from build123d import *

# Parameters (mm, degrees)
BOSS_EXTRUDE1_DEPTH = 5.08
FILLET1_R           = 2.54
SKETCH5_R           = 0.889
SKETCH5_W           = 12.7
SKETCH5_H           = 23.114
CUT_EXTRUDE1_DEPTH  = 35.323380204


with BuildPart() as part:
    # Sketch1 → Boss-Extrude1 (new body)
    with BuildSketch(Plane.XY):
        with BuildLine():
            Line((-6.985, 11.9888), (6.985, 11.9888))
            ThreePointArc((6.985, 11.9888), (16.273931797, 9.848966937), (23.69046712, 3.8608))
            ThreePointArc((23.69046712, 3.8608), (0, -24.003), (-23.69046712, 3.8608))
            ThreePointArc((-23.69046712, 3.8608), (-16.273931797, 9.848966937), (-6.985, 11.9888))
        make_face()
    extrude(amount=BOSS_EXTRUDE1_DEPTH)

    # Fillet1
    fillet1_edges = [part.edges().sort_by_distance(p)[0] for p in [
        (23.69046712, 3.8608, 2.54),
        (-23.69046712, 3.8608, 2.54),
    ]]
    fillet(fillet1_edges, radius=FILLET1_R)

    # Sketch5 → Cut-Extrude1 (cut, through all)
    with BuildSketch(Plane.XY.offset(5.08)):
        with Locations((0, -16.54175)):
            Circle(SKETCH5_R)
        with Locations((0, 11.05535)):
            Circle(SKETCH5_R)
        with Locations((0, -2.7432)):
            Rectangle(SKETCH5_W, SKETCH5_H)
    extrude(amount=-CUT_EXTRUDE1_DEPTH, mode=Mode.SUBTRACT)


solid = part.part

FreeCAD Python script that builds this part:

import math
import FreeCAD as App
import Part
import Sketcher
Q = App.Units.Quantity


def edges_at(feature, points):
    """Names of the edges that pass closest to the given points."""
    edges = feature.Shape.Edges
    near = lambda p: min(range(len(edges)), key=lambda i: edges[i].distToShape(Part.Vertex(*p))[0])
    return sorted({f"Edge{near(p) + 1}" for p in points})


def add_polygon(sketch, points):
    """Adds a closed chain of lines whose ends are joined by coincident constraints."""
    first, n = sketch.GeometryCount, len(points)
    for a, b in zip(points, points[1:] + points[:1]):
        sketch.addGeometry(Part.LineSegment(App.Vector(*a, 0), App.Vector(*b, 0)), False)
    for i in range(n):
        sketch.addConstraint(Sketcher.Constraint("Coincident", first + i, 2, first + (i + 1) % n, 1))

doc = App.newDocument("Part")
body = doc.addObject("PartDesign::Body", "Body")

# Sketch on XY plane
sketch1 = body.newObject("Sketcher::SketchObject", "Sketch")
sketch1.AttachmentSupport = (doc.getObject("XY_Plane"), [""])
sketch1.MapMode = "FlatFace"
sketch1.addGeometry([
    Part.LineSegment(App.Vector(7, 12, 0), App.Vector(-7, 12, 0)),
    Part.ArcOfCircle(Part.Circle(App.Vector(-7, -9, 0), App.Vector(0, 0, 1), 21), math.radians(90), math.radians(142)),
    Part.ArcOfCircle(Part.Circle(App.Vector(0, 0, 0), App.Vector(0, 0, 1), 24), math.radians(171), math.radians(369)),
    Part.ArcOfCircle(Part.Circle(App.Vector(7, -9, 0), App.Vector(0, 0, 1), 21), math.radians(38), math.radians(90)),
], False)
sketch1.addConstraint([
    Sketcher.Constraint("Tangent", 0, 2, 1, 1),
    Sketcher.Constraint("Coincident", 1, 2, 2, 1),
    Sketcher.Constraint("Coincident", 2, 2, 3, 1),
    Sketcher.Constraint("Tangent", 3, 2, 0, 1),
    Sketcher.Constraint("Horizontal", 0),
    Sketcher.Constraint("Coincident", 2, 3, -1, 1),
    Sketcher.Constraint("Equal", 1, 3),
    Sketcher.Constraint("Horizontal", 1, 2, 2, 2),
    Sketcher.Constraint("Radius", 2, Q("0.945 in")),
    Sketcher.Constraint("DistanceX", 0, 2, 0, 1, Q("0.55 in")),
    Sketcher.Constraint("DistanceY", 1, 2, 0, 2, Q("0.32 in")),
    Sketcher.Constraint("DistanceY", -1, 1, 0, 2, Q("0.472 in")),
])
pad1 = body.newObject("PartDesign::Pad", "Pad")
pad1.Profile = sketch1
pad1.Length = Q("0.2 in")
doc.recompute()

fillet = body.newObject("PartDesign::Fillet", "Fillet")
fillet.Base = (pad1, edges_at(pad1, [(23.69, 3.861, 2.54), (-23.69, 3.861, 2.54)]))
fillet.Radius = Q("0.1 in")

# Sketch on XY plane
sketch2 = body.newObject("Sketcher::SketchObject", "Sketch001")
sketch2.AttachmentSupport = (doc.getObject("XY_Plane"), [""])
sketch2.MapMode = "FlatFace"
sketch2.AttachmentOffset = App.Placement(App.Vector(0, 0, 0.2 * 25.4), App.Rotation())
sketch2.addGeometry(Part.Circle(App.Vector(0, -16.5, 0), App.Vector(0, 0, 1), 0.9), False)  # 0
sketch2.addGeometry(Part.Circle(App.Vector(0, 11.1, 0), App.Vector(0, 0, 1), 0.9), False)  # 1
add_polygon(sketch2, [(-6.3, 8.8), (-6.3, -14.3), (6.3, -14.3), (6.3, 8.8)])  # lines 2-5
sketch2.addConstraint([
    Sketcher.Constraint("Vertical", 2),
    Sketcher.Constraint("Horizontal", 3),
    Sketcher.Constraint("Vertical", 4),
    Sketcher.Constraint("Horizontal", 5),
    Sketcher.Constraint("Equal", 0, 1),
    Sketcher.Constraint("PointOnObject", 0, 3, -2),
    Sketcher.Constraint("PointOnObject", 1, 3, -2),
    Sketcher.Constraint("Diameter", 0, Q("0.07 in")),
    Sketcher.Constraint("DistanceX", 3, 1, 3, 2, Q("0.5 in")),
    Sketcher.Constraint("DistanceY", 2, 2, 2, 1, Q("0.91 in")),
    Sketcher.Constraint("DistanceX", 2, 2, -1, 1, Q("0.25 in")),
    Sketcher.Constraint("DistanceY", 2, 2, -1, 1, Q("0.563 in")),
    Sketcher.Constraint("DistanceY", 0, 3, 1, 3, Q("1.0865 in")),
    Sketcher.Constraint("DistanceY", 0, 3, -1, 1, 16.54175),
])
pocket1 = body.newObject("PartDesign::Pocket", "Pocket")
pocket1.Profile = sketch2
pocket1.Type = "ThroughAll"

doc.recompute()
